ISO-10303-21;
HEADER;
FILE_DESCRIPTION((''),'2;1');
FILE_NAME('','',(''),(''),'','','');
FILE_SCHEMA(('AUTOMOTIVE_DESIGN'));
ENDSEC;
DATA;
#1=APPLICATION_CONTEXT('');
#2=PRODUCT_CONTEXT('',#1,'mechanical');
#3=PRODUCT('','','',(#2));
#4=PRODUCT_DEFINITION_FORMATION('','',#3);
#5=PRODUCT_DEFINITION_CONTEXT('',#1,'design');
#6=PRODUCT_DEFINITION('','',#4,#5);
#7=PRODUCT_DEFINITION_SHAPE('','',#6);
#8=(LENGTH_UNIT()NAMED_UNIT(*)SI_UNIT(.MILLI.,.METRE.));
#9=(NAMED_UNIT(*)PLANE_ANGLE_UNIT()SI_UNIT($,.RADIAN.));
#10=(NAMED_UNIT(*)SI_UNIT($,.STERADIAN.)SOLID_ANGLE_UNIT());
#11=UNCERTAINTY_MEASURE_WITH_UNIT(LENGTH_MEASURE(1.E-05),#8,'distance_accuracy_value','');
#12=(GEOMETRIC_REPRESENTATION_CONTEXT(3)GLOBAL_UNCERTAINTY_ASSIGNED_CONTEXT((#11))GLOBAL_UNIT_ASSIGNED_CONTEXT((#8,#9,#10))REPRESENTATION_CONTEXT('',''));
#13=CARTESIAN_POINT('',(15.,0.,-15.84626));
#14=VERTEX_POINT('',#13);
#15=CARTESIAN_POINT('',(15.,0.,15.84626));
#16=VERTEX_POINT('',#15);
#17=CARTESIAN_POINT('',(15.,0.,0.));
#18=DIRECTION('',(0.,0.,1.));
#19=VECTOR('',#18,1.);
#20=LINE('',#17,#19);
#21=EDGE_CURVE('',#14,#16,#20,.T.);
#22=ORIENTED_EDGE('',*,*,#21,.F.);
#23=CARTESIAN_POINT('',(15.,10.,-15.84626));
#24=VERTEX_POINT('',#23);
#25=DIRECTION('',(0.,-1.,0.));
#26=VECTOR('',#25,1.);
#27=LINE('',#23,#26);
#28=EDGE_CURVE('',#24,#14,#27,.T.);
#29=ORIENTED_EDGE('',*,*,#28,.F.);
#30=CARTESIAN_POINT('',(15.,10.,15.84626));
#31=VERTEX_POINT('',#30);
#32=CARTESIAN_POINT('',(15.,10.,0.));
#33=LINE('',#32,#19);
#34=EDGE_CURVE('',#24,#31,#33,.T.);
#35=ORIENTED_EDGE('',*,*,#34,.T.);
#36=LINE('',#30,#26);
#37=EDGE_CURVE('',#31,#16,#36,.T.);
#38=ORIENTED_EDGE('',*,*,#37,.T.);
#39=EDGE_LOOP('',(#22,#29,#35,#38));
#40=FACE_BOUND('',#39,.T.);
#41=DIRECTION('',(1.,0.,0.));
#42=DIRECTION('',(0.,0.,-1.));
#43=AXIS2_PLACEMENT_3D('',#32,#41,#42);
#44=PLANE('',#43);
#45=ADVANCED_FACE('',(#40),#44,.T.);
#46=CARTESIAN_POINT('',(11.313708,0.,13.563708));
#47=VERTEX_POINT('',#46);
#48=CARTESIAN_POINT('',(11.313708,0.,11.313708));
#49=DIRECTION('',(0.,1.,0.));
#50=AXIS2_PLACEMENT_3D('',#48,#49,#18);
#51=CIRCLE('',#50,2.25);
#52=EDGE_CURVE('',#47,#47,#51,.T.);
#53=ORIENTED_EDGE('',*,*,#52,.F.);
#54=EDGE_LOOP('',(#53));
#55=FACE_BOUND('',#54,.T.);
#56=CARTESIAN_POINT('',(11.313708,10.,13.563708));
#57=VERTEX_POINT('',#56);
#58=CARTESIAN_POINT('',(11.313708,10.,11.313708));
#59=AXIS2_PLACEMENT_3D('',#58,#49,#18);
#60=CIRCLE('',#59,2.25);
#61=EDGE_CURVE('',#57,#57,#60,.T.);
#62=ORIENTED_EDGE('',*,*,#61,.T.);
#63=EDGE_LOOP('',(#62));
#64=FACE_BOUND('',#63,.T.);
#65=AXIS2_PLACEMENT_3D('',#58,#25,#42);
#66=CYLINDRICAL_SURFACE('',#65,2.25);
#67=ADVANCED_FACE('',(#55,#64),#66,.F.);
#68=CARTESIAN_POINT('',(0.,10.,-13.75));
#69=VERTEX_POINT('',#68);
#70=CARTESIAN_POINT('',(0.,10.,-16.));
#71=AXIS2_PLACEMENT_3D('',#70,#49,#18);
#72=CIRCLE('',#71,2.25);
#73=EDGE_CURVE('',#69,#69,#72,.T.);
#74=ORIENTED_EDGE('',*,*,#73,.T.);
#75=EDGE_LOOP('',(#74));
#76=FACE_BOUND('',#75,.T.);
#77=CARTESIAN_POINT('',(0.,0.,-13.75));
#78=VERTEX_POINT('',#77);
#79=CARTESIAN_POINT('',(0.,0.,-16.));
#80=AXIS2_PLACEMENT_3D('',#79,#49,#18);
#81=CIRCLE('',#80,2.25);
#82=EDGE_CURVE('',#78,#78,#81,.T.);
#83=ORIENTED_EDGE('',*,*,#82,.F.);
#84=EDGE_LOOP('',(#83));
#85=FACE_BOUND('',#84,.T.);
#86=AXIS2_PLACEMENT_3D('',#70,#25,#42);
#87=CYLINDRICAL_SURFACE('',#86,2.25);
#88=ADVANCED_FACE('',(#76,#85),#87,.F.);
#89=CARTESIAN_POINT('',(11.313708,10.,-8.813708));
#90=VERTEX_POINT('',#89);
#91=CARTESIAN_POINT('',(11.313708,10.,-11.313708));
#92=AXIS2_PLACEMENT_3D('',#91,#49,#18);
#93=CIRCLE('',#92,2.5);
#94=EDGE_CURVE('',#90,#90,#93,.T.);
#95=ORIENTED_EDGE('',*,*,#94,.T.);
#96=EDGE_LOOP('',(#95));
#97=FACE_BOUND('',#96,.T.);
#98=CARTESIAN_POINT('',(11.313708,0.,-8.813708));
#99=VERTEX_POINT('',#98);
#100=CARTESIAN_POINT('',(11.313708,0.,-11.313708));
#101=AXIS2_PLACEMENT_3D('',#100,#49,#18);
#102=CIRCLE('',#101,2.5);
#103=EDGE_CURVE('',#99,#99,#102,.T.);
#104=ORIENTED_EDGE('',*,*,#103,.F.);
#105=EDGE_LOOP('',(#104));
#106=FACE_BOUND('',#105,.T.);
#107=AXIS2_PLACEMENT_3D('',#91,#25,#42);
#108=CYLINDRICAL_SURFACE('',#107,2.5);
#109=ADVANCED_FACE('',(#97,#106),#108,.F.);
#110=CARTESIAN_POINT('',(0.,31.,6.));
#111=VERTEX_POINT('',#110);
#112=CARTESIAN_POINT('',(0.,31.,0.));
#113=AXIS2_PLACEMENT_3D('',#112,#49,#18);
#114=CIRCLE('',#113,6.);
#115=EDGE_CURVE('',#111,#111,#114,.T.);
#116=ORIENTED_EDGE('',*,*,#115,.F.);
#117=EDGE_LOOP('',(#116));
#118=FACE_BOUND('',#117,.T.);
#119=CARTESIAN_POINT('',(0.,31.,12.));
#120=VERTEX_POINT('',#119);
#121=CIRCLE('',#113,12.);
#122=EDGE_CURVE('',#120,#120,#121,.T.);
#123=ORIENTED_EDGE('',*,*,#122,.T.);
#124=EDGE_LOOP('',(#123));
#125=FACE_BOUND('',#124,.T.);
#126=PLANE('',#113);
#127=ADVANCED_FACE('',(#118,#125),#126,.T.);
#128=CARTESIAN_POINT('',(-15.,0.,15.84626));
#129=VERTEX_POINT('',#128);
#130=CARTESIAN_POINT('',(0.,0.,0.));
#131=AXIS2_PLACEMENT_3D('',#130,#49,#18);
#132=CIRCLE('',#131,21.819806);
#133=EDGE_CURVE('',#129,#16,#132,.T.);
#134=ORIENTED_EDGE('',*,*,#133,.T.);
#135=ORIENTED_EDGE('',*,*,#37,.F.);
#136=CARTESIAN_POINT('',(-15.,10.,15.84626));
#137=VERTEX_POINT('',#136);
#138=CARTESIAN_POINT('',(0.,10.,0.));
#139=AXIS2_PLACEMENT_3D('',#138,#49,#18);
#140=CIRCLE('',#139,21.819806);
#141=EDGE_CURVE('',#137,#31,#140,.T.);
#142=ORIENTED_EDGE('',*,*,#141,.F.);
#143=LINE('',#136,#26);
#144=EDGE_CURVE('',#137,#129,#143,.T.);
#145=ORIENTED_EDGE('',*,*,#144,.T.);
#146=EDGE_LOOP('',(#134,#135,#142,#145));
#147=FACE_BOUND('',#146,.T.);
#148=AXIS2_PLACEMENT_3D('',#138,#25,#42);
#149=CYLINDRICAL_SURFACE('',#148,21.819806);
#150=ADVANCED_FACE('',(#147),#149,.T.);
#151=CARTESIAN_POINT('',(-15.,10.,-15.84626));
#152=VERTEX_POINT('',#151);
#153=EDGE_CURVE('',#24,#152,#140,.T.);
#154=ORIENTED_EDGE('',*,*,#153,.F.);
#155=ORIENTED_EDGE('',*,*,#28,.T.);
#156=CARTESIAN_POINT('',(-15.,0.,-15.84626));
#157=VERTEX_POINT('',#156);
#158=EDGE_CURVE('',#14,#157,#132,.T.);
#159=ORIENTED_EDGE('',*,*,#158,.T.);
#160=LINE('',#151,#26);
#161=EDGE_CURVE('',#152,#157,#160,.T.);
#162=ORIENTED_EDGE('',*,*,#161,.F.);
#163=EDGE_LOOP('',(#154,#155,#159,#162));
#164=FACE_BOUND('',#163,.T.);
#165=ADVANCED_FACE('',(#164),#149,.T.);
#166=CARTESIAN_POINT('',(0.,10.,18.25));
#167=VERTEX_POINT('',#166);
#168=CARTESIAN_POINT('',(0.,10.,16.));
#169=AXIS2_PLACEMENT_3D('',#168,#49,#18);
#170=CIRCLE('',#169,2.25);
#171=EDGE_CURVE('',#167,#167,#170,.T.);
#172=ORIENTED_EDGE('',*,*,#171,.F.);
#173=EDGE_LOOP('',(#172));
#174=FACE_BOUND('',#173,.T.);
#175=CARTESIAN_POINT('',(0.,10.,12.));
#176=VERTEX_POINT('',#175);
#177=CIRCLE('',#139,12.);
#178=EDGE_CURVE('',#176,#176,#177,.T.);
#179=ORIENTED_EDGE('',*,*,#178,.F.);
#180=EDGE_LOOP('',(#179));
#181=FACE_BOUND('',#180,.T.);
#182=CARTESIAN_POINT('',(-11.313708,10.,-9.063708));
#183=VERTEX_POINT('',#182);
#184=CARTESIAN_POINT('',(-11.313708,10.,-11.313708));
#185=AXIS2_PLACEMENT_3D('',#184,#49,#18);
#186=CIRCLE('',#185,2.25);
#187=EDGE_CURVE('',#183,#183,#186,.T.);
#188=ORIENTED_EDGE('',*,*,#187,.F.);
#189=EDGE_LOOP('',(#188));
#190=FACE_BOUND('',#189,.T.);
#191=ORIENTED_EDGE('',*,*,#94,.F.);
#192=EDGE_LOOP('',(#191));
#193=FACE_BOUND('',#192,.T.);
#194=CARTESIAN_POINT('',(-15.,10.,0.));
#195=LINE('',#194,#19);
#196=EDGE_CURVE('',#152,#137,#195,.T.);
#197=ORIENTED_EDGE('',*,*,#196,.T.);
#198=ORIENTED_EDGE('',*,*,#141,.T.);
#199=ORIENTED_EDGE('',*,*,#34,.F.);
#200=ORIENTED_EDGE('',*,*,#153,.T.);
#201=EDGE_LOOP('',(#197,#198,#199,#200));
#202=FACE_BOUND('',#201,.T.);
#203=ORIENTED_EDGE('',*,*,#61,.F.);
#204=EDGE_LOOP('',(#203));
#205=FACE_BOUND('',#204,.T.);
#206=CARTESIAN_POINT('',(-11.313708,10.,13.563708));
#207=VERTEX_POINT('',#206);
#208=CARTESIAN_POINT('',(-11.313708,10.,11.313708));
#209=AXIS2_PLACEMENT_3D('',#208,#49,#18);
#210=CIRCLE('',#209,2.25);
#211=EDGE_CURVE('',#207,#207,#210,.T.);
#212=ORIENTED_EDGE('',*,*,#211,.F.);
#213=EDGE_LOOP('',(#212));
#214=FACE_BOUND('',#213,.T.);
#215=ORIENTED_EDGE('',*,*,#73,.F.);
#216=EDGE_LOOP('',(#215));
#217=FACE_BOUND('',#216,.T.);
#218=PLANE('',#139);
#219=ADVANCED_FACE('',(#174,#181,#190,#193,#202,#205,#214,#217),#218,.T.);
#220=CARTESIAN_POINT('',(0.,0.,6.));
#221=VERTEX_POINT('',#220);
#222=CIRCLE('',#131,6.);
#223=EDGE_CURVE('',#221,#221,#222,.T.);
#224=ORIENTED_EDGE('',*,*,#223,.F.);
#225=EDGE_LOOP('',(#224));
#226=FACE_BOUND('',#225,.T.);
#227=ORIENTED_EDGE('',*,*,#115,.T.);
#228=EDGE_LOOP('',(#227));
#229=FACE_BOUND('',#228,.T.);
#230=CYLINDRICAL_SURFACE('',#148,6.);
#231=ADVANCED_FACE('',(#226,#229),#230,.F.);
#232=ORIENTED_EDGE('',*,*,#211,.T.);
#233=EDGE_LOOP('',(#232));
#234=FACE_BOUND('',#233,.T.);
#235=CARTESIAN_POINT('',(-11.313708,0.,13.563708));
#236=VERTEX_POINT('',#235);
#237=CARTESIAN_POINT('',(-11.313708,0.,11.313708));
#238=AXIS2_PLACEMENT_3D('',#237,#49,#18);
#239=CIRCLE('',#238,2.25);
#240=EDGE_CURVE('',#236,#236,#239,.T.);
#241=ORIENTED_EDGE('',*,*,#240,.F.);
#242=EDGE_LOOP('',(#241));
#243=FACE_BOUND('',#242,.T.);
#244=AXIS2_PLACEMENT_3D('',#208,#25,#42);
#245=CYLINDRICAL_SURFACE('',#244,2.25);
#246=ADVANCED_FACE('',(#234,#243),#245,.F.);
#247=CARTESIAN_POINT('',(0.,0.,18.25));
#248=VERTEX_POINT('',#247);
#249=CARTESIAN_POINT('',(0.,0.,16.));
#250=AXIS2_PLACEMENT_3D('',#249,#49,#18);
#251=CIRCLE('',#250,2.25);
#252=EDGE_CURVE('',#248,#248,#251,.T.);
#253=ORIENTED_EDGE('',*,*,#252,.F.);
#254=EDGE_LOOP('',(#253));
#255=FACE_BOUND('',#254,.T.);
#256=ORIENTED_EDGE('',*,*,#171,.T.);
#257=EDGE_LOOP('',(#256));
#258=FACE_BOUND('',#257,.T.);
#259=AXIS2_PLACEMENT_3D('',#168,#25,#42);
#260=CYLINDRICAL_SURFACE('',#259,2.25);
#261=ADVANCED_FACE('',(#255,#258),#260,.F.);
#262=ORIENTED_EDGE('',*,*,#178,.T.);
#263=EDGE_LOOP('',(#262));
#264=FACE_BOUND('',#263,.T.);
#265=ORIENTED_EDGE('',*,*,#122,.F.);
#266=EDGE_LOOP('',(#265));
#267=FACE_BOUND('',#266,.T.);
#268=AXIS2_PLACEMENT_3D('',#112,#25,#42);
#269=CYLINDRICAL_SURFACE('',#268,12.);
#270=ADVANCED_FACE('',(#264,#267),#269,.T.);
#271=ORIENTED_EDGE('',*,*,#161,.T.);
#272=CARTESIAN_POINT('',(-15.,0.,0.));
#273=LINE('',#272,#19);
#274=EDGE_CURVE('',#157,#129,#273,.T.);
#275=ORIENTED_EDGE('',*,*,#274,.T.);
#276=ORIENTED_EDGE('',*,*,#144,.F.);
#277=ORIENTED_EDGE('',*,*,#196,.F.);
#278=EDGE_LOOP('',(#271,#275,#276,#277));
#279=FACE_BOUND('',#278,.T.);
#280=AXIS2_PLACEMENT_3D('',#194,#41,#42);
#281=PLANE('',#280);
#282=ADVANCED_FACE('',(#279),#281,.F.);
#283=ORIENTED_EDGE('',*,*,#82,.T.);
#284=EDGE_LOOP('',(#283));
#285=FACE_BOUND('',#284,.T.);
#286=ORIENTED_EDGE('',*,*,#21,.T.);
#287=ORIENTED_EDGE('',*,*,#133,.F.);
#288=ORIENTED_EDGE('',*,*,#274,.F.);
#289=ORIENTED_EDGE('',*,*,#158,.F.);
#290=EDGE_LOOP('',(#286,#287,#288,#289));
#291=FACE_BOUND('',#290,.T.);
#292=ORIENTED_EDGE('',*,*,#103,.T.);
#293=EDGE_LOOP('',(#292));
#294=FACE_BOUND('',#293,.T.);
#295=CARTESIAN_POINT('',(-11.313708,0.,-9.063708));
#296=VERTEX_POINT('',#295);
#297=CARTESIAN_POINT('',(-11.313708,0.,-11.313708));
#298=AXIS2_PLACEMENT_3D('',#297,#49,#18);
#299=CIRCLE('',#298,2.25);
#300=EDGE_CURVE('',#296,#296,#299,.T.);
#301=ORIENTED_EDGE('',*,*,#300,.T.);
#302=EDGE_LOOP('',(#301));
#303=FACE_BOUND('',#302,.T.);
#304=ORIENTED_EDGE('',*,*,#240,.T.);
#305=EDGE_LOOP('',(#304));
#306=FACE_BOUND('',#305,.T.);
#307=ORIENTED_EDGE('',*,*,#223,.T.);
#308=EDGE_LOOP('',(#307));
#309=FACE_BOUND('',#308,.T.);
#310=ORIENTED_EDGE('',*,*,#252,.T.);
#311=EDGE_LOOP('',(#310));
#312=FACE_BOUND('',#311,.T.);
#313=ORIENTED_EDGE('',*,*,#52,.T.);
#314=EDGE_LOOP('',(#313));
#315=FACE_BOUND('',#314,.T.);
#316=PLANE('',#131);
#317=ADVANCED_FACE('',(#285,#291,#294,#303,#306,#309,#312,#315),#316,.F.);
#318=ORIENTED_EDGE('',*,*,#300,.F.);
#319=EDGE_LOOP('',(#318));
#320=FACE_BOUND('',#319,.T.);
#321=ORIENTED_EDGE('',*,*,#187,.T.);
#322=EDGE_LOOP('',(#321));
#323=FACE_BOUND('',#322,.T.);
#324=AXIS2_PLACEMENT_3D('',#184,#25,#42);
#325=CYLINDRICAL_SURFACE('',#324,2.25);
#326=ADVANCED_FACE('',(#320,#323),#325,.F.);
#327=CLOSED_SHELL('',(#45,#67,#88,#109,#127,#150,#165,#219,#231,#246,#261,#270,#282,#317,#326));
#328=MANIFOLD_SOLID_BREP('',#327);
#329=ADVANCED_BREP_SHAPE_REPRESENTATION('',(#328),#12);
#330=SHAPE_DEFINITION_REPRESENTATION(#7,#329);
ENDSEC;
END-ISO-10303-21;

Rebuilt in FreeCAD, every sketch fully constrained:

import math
import FreeCAD as App
import Part
import Sketcher

doc = App.newDocument("Part")
params = doc.addObject("Spreadsheet::Sheet", "Params")
for row, (alias, value) in enumerate([
    ("sketch1_diameter", "12 mm"),
    ("sketch1_radius", "2.5 mm"),
    ("sketch1_radius2", "2.25 mm"),
    ("pad1_length", "10 mm"),
    ("sketch2_diameter", "24 mm"),
    ("sketch2_diameter2", "12 mm"),
    ("pad2_length", "21 mm"),
], start=1):
    params.set(f"A{row}", alias)
    params.set(f"B{row}", "=" + value)
    params.setAlias(f"B{row}", alias)

body = doc.addObject("PartDesign::Body", "Body")

sketch1 = body.newObject("Sketcher::SketchObject", "Sketch")
sketch1.AttachmentSupport = (doc.getObject("XZ_Plane"), [""])
sketch1.MapMode = "FlatFace"
sketch1.addGeometry(Part.ArcOfCircle(Part.Circle(App.Vector(0, 0, 0), App.Vector(0, 0, 1), 21.82), math.radians(47), math.radians(133)), False)
sketch1.addGeometry(Part.LineSegment(App.Vector(15, 15.85, 0), App.Vector(15, -15.85, 0)), False)
sketch1.addGeometry(Part.ArcOfCircle(Part.Circle(App.Vector(0, 0, 0), App.Vector(0, 0, 1), 21.82), math.radians(-133), math.radians(-47)), False)
sketch1.addGeometry(Part.LineSegment(App.Vector(-15, -15.85, 0), App.Vector(-15, 15.85, 0)), False)
sketch1.addGeometry(Part.ArcOfCircle(Part.Circle(App.Vector(11.31, -11.31, 0), App.Vector(0, 0, 1), 2.5), math.radians(49), math.radians(221)), False)
sketch1.addGeometry(Part.ArcOfCircle(Part.Circle(App.Vector(11.31, -11.31, 0), App.Vector(0, 0, 1), 2.5), math.radians(-139), math.radians(0)), False)
sketch1.addGeometry(Part.ArcOfCircle(Part.Circle(App.Vector(11.31, -11.31, 0), App.Vector(0, 0, 1), 2.5), math.radians(0), math.radians(49)), False)
sketch1.addGeometry(Part.ArcOfCircle(Part.Circle(App.Vector(0, -16, 0), App.Vector(0, 0, 1), 2.25), math.radians(4), math.radians(176)), False)
sketch1.addGeometry(Part.ArcOfCircle(Part.Circle(App.Vector(0, -16, 0), App.Vector(0, 0, 1), 2.25), math.radians(176), math.radians(360)), False)
sketch1.addGeometry(Part.ArcOfCircle(Part.Circle(App.Vector(0, -16, 0), App.Vector(0, 0, 1), 2.25), math.radians(0), math.radians(4.03)), False)
sketch1.addGeometry(Part.ArcOfCircle(Part.Circle(App.Vector(-11.31, -11.31, 0), App.Vector(0, 0, 1), 2.25), math.radians(-41), math.radians(0)), False)
sketch1.addGeometry(Part.ArcOfCircle(Part.Circle(App.Vector(-11.31, -11.31, 0), App.Vector(0, 0, 1), 2.25), math.radians(0), math.radians(131)), False)
sketch1.addGeometry(Part.ArcOfCircle(Part.Circle(App.Vector(-11.31, -11.31, 0), App.Vector(0, 0, 1), 2.25), math.radians(131), math.radians(319)), False)
sketch1.addGeometry(Part.ArcOfCircle(Part.Circle(App.Vector(-11.31, 11.31, 0), App.Vector(0, 0, 1), 2.25), math.radians(-131), math.radians(0)), False)
sketch1.addGeometry(Part.ArcOfCircle(Part.Circle(App.Vector(-11.31, 11.31, 0), App.Vector(0, 0, 1), 2.25), math.radians(0), math.radians(41)), False)
sketch1.addGeometry(Part.ArcOfCircle(Part.Circle(App.Vector(-11.31, 11.31, 0), App.Vector(0, 0, 1), 2.25), math.radians(41), math.radians(229)), False)
sketch1.addGeometry(Part.ArcOfCircle(Part.Circle(App.Vector(0, 16, 0), App.Vector(0, 0, 1), 2.25), math.radians(-176), math.radians(-4)), False)
sketch1.addGeometry(Part.ArcOfCircle(Part.Circle(App.Vector(0, 16, 0), App.Vector(0, 0, 1), 2.25), math.radians(-4.03), math.radians(0)), False)
sketch1.addGeometry(Part.ArcOfCircle(Part.Circle(App.Vector(0, 16, 0), App.Vector(0, 0, 1), 2.25), math.radians(0), math.radians(184)), False)
sketch1.addGeometry(Part.ArcOfCircle(Part.Circle(App.Vector(11.31, 11.31, 0), App.Vector(0, 0, 1), 2.25), math.radians(139), math.radians(311)), False)
sketch1.addGeometry(Part.ArcOfCircle(Part.Circle(App.Vector(11.31, 11.31, 0), App.Vector(0, 0, 1), 2.25), math.radians(-49), math.radians(0)), False)
sketch1.addGeometry(Part.ArcOfCircle(Part.Circle(App.Vector(11.31, 11.31, 0), App.Vector(0, 0, 1), 2.25), math.radians(0), math.radians(139)), False)
sketch1.addGeometry(Part.Circle(App.Vector(0, 0, 0), App.Vector(0, 0, 1), 6), False)
sketch1.addConstraint(Sketcher.Constraint("Coincident", 0, 1, 1, 1))
sketch1.addConstraint(Sketcher.Constraint("Coincident", 1, 2, 2, 2))
sketch1.addConstraint(Sketcher.Constraint("Coincident", 2, 1, 3, 1))
sketch1.addConstraint(Sketcher.Constraint("Coincident", 3, 2, 0, 2))
sketch1.addConstraint(Sketcher.Constraint("Tangent", 4, 2, 5, 1))
sketch1.addConstraint(Sketcher.Constraint("Tangent", 5, 2, 6, 1))
sketch1.addConstraint(Sketcher.Constraint("Tangent", 6, 2, 4, 1))
sketch1.addConstraint(Sketcher.Constraint("Tangent", 7, 2, 8, 1))
sketch1.addConstraint(Sketcher.Constraint("Tangent", 8, 2, 9, 1))
sketch1.addConstraint(Sketcher.Constraint("Tangent", 9, 2, 7, 1))
sketch1.addConstraint(Sketcher.Constraint("Tangent", 10, 2, 11, 1))
sketch1.addConstraint(Sketcher.Constraint("Tangent", 11, 2, 12, 1))
sketch1.addConstraint(Sketcher.Constraint("Tangent", 12, 2, 10, 1))
sketch1.addConstraint(Sketcher.Constraint("Tangent", 13, 2, 14, 1))
sketch1.addConstraint(Sketcher.Constraint("Tangent", 14, 2, 15, 1))
sketch1.addConstraint(Sketcher.Constraint("Tangent", 15, 2, 13, 1))
sketch1.addConstraint(Sketcher.Constraint("Tangent", 16, 2, 17, 1))
sketch1.addConstraint(Sketcher.Constraint("Tangent", 17, 2, 18, 1))
sketch1.addConstraint(Sketcher.Constraint("Tangent", 18, 2, 16, 1))
sketch1.addConstraint(Sketcher.Constraint("Tangent", 19, 2, 20, 1))
sketch1.addConstraint(Sketcher.Constraint("Tangent", 20, 2, 21, 1))
sketch1.addConstraint(Sketcher.Constraint("Tangent", 21, 2, 19, 1))
sketch1.addConstraint(Sketcher.Constraint("Vertical", 1))
sketch1.addConstraint(Sketcher.Constraint("Vertical", 3))
sketch1.addConstraint(Sketcher.Constraint("Coincident", 0, 3, -1, 1))
sketch1.addConstraint(Sketcher.Constraint("Coincident", 2, 3, -1, 1))
sketch1.addConstraint(Sketcher.Constraint("Coincident", 22, 3, -1, 1))
sketch1.addConstraint(Sketcher.Constraint("Equal", 0, 2))
sketch1.addConstraint(Sketcher.Constraint("Equal", 9, 10))
sketch1.addConstraint(Sketcher.Constraint("Equal", 12, 13))
sketch1.addConstraint(Sketcher.Constraint("Equal", 15, 16))
sketch1.addConstraint(Sketcher.Constraint("Equal", 18, 19))
sketch1.addConstraint(Sketcher.Constraint("Symmetric", 4, 3, 13, 3, -1, 1))
sketch1.addConstraint(Sketcher.Constraint("Symmetric", 7, 3, 16, 3, -1, 1))
sketch1.addConstraint(Sketcher.Constraint("Symmetric", 10, 3, 19, 3, -1, 1))
sketch1.addConstraint(Sketcher.Constraint("Symmetric", 4, 3, 10, 3, -2))
sketch1.addConstraint(Sketcher.Constraint("Symmetric", 7, 2, 9, 2, -2))
sketch1.addConstraint(Sketcher.Constraint("Horizontal", 1, 2, 2, 1))
sketch1.addConstraint(Sketcher.Constraint("Horizontal", 12, 3, 5, 2))
sketch1.addConstraint(Sketcher.Constraint("Horizontal", 9, 3, 8, 2))
sketch1.addConstraint(Sketcher.Constraint("Horizontal", 5, 2, 10, 2))
sketch1.addConstraint(Sketcher.Constraint("Horizontal", 21, 3, 13, 2))
sketch1.addConstraint(Sketcher.Constraint("Horizontal", 18, 3, 17, 2))
sketch1.addConstraint(Sketcher.Constraint("Horizontal", 16, 2, 18, 2))
sketch1.addConstraint(Sketcher.Constraint("Horizontal", 15, 2, 19, 2))
sketch1.addConstraint(Sketcher.Constraint("Horizontal", 13, 2, 20, 2))
sketch1.addConstraint(Sketcher.Constraint("Horizontal", 14, 2, 21, 2))
sketch1.addConstraint(Sketcher.Constraint("Vertical", 12, 2, 14, 2))
sketch1.addConstraint(Sketcher.Constraint("Vertical", 11, 2, 15, 2))
sketch1.addConstraint(Sketcher.Constraint("Vertical", 9, 2, 16, 2))
sketch1.addConstraint(Sketcher.Constraint("Diameter", 22, 12.0))
sketch1.addConstraint(Sketcher.Constraint("Radius", 4, 2.5))
sketch1.addConstraint(Sketcher.Constraint("Radius", 7, 2.25))
sketch1.addConstraint(Sketcher.Constraint("DistanceY", 7, 3, -1, 1, 16.0))
sketch1.addConstraint(Sketcher.Constraint("DistanceX", -1, 1, 0, 1, 15.0))
sketch1.addConstraint(Sketcher.Constraint("Radius", 0, 21.819806))
sketch1.addConstraint(Sketcher.Constraint("DistanceX", -1, 1, 4, 3, 11.313708))
sketch1.addConstraint(Sketcher.Constraint("DistanceY", 4, 3, -1, 1, 11.313708))
sketch1.addConstraint(Sketcher.Constraint("DistanceX", 7, 2, -1, 1, 2.244431))
sketch1.addConstraint(Sketcher.Constraint("DistanceY", 11, 2, -1, 1, 9.614789))
sketch1.addConstraint(Sketcher.Constraint("DistanceX", 12, 2, -1, 1, 9.614789))
sketch1.addConstraint(Sketcher.Constraint("DistanceX", 4, 2, 4, 3, 1.900471))
sketch1.addConstraint(Sketcher.Constraint("DistanceY", 5, 2, 6, 2, 1.900471))
sketch1.setExpression("Constraints[50]", "Params.sketch1_diameter")
sketch1.setExpression("Constraints[51]", "Params.sketch1_radius")
sketch1.setExpression("Constraints[52]", "Params.sketch1_radius2")
pad1 = body.newObject("PartDesign::Pad", "Pad")
pad1.Profile = sketch1
pad1.setExpression("Length", "Params.pad1_length")
pad1.Reversed = True

sketch2 = body.newObject("Sketcher::SketchObject", "Sketch001")
sketch2.AttachmentSupport = (doc.getObject("XZ_Plane"), [""])
sketch2.MapMode = "FlatFace"
sketch2.AttachmentOffset = App.Placement(App.Vector(0, 0, -10), App.Rotation())
sketch2.addGeometry(Part.Circle(App.Vector(0, 0, 0), App.Vector(0, 0, 1), 12), False)
sketch2.addGeometry(Part.Circle(App.Vector(0, 0, 0), App.Vector(0, 0, 1), 6), False)
sketch2.addConstraint(Sketcher.Constraint("Coincident", 0, 3, -1, 1))
sketch2.addConstraint(Sketcher.Constraint("Coincident", 1, 3, -1, 1))
sketch2.addConstraint(Sketcher.Constraint("Diameter", 0, 24.0))
sketch2.addConstraint(Sketcher.Constraint("Diameter", 1, 12.0))
sketch2.setExpression("Constraints[2]", "Params.sketch2_diameter")
sketch2.setExpression("Constraints[3]", "Params.sketch2_diameter2")
pad2 = body.newObject("PartDesign::Pad", "Pad001")
pad2.Profile = sketch2
pad2.setExpression("Length", "Params.pad2_length")
pad2.Reversed = True

doc.recompute()
